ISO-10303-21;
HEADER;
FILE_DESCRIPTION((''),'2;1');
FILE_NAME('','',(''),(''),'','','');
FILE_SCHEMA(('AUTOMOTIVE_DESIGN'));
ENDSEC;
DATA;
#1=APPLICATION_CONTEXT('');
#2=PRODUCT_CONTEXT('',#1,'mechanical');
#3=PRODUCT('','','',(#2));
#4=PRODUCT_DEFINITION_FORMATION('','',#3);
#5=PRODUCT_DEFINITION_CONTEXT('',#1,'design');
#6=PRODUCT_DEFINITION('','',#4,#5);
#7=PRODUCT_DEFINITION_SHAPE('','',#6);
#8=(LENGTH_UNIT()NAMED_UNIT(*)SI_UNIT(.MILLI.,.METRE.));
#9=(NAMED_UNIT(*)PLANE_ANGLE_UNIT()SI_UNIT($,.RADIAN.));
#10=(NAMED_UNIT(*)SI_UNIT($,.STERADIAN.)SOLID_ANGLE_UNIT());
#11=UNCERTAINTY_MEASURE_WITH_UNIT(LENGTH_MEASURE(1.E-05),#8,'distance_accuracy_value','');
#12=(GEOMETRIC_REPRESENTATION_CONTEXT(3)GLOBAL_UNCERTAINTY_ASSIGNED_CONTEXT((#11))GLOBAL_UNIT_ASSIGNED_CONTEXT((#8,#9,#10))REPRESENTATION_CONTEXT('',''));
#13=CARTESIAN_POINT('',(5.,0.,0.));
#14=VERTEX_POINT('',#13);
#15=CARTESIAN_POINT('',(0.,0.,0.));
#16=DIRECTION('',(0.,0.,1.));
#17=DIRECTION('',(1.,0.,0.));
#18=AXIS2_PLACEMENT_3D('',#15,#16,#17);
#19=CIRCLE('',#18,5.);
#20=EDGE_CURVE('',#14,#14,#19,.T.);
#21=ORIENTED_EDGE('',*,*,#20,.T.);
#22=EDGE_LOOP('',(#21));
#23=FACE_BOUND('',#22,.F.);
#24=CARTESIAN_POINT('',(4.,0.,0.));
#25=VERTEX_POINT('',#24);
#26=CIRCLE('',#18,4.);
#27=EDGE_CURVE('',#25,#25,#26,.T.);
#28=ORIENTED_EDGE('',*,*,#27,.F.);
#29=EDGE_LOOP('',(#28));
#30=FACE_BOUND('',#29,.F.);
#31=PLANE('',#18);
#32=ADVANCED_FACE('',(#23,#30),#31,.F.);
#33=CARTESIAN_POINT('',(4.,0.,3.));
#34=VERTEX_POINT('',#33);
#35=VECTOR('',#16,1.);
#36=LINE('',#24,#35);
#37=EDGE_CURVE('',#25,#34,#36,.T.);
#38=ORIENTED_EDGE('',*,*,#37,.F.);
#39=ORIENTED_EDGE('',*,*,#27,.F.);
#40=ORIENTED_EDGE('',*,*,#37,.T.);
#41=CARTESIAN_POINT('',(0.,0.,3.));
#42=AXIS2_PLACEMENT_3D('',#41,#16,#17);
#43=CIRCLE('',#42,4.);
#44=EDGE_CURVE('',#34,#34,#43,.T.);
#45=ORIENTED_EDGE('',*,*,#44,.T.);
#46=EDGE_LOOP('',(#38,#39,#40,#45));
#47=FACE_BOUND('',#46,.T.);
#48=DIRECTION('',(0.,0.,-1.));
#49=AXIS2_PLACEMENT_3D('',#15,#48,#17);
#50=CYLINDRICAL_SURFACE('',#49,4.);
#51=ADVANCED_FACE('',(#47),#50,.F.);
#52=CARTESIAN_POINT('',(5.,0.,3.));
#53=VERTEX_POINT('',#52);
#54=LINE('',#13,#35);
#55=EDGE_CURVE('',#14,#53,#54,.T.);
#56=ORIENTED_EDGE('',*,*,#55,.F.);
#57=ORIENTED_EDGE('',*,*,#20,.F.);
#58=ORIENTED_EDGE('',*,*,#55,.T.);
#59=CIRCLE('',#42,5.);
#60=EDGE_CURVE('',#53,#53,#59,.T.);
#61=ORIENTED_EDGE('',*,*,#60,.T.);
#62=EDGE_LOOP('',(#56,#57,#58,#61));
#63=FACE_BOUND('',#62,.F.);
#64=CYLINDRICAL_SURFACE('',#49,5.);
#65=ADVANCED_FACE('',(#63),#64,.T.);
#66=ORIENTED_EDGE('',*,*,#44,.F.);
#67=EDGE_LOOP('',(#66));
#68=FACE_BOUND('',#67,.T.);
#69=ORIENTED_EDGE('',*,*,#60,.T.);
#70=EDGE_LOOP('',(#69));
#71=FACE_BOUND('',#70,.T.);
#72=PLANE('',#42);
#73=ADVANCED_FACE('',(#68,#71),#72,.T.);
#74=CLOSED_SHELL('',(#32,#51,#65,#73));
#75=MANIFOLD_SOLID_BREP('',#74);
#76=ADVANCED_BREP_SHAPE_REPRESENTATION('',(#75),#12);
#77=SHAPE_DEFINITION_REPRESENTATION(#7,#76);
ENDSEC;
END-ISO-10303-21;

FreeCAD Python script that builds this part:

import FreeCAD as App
import Part
import Sketcher

doc = App.newDocument("Part")
body = doc.addObject("PartDesign::Body", "Body")

sketch1 = body.newObject("Sketcher::SketchObject", "Sketch")
sketch1.AttachmentSupport = (doc.getObject("XY_Plane"), [""])
sketch1.MapMode = "FlatFace"
sketch1.addGeometry([
    Part.Circle(App.Vector(0, 0, 0), App.Vector(0, 0, 1), 5),
    Part.Circle(App.Vector(0, 0, 0), App.Vector(0, 0, 1), 4),
], False)
sketch1.addConstraint([
    Sketcher.Constraint("Coincident", 0, 3, -1, 1),
    Sketcher.Constraint("Coincident", 1, 3, -1, 1),
    Sketcher.Constraint("Diameter", 0, 10.0),
    Sketcher.Constraint("Diameter", 1, 8.0),
])
pad1 = body.newObject("PartDesign::Pad", "Pad")
pad1.Profile = sketch1
pad1.Length = 3

doc.recompute()
